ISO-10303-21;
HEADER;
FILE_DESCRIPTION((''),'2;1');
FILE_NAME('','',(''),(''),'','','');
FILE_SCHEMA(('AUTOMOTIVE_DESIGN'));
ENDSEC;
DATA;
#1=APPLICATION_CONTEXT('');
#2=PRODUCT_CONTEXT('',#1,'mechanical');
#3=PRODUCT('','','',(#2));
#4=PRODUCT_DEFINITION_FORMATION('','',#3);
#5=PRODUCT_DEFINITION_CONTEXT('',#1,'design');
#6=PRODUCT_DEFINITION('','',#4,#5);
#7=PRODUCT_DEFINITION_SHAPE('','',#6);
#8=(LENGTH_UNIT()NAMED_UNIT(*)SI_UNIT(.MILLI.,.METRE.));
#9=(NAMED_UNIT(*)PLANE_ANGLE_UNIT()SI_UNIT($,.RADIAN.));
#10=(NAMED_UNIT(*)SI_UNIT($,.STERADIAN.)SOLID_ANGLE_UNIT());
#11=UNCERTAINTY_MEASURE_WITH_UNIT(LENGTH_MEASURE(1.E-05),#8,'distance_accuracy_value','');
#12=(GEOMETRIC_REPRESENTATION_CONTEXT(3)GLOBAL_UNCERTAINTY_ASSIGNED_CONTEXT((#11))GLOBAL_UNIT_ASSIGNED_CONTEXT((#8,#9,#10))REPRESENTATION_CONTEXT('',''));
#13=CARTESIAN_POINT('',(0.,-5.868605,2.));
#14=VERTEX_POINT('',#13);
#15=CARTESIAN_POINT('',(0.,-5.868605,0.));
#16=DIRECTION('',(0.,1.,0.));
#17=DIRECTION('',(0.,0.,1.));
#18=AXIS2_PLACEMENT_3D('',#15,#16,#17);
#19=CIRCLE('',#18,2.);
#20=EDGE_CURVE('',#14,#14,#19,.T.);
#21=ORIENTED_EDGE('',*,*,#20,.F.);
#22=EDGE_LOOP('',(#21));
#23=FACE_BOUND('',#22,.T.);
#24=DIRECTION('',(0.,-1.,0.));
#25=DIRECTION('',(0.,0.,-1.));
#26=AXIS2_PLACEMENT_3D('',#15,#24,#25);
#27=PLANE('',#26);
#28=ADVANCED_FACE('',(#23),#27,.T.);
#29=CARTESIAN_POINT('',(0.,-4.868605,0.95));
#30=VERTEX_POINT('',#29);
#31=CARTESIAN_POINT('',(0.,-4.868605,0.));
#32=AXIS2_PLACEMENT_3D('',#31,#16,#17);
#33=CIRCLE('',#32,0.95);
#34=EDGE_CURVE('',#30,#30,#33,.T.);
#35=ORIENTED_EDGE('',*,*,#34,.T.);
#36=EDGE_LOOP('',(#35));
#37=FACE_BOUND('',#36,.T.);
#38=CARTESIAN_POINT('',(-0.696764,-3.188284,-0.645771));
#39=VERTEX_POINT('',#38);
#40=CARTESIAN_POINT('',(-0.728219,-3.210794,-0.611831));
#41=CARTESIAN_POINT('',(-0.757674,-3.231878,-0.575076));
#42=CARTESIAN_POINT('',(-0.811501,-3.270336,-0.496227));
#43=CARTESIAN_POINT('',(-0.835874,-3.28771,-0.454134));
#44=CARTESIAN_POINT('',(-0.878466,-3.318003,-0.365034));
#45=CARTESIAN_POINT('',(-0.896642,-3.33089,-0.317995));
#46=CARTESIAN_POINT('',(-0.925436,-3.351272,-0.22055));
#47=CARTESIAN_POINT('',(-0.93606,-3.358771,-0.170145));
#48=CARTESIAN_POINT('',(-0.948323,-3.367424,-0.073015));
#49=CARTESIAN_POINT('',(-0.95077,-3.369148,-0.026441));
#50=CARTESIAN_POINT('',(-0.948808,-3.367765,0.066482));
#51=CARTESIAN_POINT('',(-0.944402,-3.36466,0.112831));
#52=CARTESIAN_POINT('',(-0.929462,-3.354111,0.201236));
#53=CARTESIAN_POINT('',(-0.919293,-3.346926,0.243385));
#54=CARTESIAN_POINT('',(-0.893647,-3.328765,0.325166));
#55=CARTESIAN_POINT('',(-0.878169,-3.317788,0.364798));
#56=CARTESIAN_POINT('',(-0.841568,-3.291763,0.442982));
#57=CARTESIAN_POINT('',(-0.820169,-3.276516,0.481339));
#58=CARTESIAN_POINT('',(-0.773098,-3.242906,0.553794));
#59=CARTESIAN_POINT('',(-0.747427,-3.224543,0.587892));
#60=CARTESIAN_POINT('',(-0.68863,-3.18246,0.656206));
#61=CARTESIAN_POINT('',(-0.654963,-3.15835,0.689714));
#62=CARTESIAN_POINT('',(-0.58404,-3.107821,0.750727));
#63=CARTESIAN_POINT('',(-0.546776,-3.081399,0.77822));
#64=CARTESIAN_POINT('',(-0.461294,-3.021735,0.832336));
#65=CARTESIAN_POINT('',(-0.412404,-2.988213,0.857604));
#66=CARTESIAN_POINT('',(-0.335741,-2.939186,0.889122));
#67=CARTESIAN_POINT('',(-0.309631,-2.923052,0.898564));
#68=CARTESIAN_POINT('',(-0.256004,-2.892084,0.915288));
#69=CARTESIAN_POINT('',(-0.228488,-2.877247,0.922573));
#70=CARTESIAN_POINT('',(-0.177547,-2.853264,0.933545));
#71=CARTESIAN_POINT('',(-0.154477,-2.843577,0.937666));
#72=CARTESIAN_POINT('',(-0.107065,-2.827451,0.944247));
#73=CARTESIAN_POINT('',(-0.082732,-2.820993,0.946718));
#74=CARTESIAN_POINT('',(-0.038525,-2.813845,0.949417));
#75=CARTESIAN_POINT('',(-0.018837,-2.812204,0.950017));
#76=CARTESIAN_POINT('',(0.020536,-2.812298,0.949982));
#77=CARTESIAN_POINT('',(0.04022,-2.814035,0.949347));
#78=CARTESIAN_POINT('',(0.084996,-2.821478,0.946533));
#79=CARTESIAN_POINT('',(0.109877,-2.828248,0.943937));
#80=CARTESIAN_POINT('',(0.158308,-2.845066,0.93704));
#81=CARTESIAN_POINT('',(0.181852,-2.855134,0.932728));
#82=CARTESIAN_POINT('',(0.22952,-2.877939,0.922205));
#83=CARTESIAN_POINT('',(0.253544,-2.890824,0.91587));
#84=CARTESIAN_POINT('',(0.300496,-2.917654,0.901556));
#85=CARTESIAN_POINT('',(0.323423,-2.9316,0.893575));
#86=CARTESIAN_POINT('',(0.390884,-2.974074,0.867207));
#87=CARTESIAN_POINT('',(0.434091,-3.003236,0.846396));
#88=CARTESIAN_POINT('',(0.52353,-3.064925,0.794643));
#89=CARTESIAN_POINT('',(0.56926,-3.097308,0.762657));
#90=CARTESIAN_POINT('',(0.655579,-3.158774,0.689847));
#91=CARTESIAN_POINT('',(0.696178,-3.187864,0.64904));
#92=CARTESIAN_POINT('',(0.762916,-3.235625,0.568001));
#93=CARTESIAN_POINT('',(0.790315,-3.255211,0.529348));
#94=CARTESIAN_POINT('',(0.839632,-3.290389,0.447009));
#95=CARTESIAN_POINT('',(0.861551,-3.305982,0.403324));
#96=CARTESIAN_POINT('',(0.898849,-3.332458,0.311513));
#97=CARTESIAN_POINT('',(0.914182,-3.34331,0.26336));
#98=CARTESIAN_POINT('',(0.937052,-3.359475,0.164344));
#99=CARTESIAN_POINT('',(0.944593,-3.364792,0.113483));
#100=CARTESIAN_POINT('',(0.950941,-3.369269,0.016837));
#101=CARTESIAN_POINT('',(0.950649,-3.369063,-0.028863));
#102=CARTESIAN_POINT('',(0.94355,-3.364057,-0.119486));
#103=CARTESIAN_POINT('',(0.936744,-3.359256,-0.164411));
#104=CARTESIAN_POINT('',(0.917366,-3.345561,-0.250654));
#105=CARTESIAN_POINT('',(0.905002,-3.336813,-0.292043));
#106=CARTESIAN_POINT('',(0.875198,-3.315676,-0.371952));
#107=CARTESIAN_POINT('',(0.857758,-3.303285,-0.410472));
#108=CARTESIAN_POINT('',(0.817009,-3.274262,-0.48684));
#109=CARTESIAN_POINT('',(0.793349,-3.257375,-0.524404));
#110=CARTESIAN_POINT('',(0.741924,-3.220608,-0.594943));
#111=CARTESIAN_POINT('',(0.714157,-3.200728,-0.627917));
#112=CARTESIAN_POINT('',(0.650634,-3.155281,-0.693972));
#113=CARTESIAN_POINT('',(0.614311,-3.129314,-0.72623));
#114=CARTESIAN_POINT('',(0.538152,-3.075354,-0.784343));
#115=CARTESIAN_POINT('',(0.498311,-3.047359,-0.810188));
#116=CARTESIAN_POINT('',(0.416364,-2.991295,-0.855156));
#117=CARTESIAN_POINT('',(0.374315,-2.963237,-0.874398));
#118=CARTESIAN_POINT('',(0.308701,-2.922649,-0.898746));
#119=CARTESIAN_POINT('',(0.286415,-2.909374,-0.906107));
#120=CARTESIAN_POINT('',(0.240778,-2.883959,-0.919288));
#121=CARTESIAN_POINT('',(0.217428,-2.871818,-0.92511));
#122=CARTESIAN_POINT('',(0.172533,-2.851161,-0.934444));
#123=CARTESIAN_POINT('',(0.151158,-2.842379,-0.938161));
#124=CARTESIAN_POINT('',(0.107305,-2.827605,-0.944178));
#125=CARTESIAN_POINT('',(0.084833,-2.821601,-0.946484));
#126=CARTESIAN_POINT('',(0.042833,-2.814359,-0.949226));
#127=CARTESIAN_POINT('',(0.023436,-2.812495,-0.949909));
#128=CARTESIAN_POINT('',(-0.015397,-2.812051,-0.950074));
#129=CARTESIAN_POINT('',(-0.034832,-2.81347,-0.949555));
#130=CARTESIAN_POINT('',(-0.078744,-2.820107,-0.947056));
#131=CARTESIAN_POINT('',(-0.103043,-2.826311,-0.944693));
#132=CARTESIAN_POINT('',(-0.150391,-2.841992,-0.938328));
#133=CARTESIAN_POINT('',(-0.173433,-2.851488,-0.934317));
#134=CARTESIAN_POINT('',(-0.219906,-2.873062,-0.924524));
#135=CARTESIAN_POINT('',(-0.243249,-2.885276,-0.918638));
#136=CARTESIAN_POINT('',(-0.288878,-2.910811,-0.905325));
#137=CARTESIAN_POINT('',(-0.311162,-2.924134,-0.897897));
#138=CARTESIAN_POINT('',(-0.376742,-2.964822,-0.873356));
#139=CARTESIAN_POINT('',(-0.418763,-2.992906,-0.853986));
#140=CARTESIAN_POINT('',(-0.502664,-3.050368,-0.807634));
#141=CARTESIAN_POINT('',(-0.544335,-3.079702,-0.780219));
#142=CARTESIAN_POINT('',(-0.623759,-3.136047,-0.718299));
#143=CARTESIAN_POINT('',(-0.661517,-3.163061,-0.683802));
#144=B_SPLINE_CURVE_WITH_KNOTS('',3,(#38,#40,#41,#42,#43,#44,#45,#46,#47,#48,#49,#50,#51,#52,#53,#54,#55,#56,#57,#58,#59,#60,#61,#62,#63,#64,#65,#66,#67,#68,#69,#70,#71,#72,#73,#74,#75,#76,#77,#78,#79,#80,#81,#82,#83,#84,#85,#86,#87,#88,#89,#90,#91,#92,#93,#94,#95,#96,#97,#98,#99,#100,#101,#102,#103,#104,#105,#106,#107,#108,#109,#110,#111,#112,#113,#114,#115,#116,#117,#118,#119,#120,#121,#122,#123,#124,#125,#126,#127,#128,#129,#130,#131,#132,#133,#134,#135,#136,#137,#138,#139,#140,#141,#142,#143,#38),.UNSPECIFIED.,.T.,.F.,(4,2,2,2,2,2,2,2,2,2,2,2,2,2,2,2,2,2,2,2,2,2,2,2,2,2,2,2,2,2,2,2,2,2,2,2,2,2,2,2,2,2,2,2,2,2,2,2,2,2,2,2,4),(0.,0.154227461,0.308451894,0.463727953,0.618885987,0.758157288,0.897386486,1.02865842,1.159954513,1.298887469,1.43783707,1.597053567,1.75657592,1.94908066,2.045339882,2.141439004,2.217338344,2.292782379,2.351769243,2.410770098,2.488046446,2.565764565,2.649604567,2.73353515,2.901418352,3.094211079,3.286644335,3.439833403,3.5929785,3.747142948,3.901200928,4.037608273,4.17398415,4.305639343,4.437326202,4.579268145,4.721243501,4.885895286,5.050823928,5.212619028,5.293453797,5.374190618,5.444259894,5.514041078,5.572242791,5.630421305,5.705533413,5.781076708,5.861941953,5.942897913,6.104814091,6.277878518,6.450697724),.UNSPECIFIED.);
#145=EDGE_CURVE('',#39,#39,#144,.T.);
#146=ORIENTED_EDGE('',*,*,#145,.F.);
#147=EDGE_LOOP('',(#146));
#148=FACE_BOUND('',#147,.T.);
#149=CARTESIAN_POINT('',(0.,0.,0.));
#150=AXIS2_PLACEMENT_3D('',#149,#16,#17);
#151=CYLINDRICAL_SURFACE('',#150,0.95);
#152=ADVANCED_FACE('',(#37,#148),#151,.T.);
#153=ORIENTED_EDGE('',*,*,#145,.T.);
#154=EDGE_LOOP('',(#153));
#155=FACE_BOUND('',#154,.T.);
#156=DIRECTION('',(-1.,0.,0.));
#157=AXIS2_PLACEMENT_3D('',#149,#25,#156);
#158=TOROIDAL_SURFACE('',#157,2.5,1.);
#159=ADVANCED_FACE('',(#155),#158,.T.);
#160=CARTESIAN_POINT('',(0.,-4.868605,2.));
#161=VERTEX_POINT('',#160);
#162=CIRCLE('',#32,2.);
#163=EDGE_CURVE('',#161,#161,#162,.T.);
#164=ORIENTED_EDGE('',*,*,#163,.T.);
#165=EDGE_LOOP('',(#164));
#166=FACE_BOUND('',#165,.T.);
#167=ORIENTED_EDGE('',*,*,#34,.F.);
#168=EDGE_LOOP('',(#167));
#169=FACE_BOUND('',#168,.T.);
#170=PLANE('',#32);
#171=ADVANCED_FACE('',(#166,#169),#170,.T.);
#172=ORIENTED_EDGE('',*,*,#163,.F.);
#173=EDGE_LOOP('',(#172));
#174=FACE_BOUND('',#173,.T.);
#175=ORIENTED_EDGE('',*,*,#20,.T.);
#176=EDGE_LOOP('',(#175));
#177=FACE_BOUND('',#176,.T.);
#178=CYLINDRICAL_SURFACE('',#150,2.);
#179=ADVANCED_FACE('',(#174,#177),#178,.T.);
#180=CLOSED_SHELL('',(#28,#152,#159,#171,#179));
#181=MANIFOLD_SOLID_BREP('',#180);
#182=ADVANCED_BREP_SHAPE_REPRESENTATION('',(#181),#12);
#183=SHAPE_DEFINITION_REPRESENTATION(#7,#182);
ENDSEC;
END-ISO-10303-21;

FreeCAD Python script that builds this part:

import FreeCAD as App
import Part
import Sketcher
Q = App.Units.Quantity


def add_polygon(sketch, points):
    """Adds a closed chain of lines whose ends are joined by coincident constraints."""
    first, n = sketch.GeometryCount, len(points)
    for a, b in zip(points, points[1:] + points[:1]):
        sketch.addGeometry(Part.LineSegment(App.Vector(*a, 0), App.Vector(*b, 0)), False)
    for i in range(n):
        sketch.addConstraint(Sketcher.Constraint("Coincident", first + i, 2, first + (i + 1) % n, 1))

doc = App.newDocument("Part")
body = doc.addObject("PartDesign::Body", "Body")

# Sketch on XZ plane
sketch1 = body.newObject("Sketcher::SketchObject", "Sketch")
sketch1.AttachmentSupport = (doc.getObject("XZ_Plane"), [""])
sketch1.MapMode = "FlatFace"
sketch1.addGeometry(Part.Circle(App.Vector(2.5, 0, 0), App.Vector(0, 0, 1), 1), False)
sketch1.addConstraint([
    Sketcher.Constraint("PointOnObject", 0, 3, -1),
    Sketcher.Constraint("Diameter", 0, Q("2 mm")),
    Sketcher.Constraint("DistanceX", -1, 1, 0, 3, Q("2.5 mm")),
])
revolution = body.newObject("PartDesign::Revolution", "Revolution")
revolution.Profile = sketch1
revolution.ReferenceAxis = (sketch1, ["V_Axis"])
revolution.Angle = 360

# Sketch on XY plane
sketch2 = body.newObject("Sketcher::SketchObject", "Sketch001")
sketch2.AttachmentSupport = (doc.getObject("XY_Plane"), [""])
sketch2.MapMode = "FlatFace"
add_polygon(sketch2, [(0, -2.6), (0, -5.9), (2, -5.9), (2, -4.9), (0.9, -4.9), (0.9, -2.6)])  # lines 0-5
sketch2.addConstraint([
    Sketcher.Constraint("Vertical", 0),
    Sketcher.Constraint("Horizontal", 1),
    Sketcher.Constraint("Vertical", 2),
    Sketcher.Constraint("Horizontal", 3),
    Sketcher.Constraint("Vertical", 4),
    Sketcher.Constraint("Horizontal", 5),
    Sketcher.Constraint("PointOnObject", 0, 2, -2),
    Sketcher.Constraint("DistanceX", 1, 1, 1, 2, Q("2 mm")),
    Sketcher.Constraint("DistanceY", 2, 1, 2, 2, Q("1 mm")),
    Sketcher.Constraint("DistanceY", 0, 2, 0, 1, Q("3.3 mm")),
    Sketcher.Constraint("DistanceX", 3, 2, 3, 1, Q("1.05 mm")),
    Sketcher.Constraint("DistanceY", 0, 2, -1, 1, Q("5.868605 mm")),
])
revolution2 = body.newObject("PartDesign::Revolution", "Revolution001")
revolution2.Profile = sketch2
revolution2.ReferenceAxis = (sketch2, ["V_Axis"])
revolution2.Angle = 360

doc.recompute()
